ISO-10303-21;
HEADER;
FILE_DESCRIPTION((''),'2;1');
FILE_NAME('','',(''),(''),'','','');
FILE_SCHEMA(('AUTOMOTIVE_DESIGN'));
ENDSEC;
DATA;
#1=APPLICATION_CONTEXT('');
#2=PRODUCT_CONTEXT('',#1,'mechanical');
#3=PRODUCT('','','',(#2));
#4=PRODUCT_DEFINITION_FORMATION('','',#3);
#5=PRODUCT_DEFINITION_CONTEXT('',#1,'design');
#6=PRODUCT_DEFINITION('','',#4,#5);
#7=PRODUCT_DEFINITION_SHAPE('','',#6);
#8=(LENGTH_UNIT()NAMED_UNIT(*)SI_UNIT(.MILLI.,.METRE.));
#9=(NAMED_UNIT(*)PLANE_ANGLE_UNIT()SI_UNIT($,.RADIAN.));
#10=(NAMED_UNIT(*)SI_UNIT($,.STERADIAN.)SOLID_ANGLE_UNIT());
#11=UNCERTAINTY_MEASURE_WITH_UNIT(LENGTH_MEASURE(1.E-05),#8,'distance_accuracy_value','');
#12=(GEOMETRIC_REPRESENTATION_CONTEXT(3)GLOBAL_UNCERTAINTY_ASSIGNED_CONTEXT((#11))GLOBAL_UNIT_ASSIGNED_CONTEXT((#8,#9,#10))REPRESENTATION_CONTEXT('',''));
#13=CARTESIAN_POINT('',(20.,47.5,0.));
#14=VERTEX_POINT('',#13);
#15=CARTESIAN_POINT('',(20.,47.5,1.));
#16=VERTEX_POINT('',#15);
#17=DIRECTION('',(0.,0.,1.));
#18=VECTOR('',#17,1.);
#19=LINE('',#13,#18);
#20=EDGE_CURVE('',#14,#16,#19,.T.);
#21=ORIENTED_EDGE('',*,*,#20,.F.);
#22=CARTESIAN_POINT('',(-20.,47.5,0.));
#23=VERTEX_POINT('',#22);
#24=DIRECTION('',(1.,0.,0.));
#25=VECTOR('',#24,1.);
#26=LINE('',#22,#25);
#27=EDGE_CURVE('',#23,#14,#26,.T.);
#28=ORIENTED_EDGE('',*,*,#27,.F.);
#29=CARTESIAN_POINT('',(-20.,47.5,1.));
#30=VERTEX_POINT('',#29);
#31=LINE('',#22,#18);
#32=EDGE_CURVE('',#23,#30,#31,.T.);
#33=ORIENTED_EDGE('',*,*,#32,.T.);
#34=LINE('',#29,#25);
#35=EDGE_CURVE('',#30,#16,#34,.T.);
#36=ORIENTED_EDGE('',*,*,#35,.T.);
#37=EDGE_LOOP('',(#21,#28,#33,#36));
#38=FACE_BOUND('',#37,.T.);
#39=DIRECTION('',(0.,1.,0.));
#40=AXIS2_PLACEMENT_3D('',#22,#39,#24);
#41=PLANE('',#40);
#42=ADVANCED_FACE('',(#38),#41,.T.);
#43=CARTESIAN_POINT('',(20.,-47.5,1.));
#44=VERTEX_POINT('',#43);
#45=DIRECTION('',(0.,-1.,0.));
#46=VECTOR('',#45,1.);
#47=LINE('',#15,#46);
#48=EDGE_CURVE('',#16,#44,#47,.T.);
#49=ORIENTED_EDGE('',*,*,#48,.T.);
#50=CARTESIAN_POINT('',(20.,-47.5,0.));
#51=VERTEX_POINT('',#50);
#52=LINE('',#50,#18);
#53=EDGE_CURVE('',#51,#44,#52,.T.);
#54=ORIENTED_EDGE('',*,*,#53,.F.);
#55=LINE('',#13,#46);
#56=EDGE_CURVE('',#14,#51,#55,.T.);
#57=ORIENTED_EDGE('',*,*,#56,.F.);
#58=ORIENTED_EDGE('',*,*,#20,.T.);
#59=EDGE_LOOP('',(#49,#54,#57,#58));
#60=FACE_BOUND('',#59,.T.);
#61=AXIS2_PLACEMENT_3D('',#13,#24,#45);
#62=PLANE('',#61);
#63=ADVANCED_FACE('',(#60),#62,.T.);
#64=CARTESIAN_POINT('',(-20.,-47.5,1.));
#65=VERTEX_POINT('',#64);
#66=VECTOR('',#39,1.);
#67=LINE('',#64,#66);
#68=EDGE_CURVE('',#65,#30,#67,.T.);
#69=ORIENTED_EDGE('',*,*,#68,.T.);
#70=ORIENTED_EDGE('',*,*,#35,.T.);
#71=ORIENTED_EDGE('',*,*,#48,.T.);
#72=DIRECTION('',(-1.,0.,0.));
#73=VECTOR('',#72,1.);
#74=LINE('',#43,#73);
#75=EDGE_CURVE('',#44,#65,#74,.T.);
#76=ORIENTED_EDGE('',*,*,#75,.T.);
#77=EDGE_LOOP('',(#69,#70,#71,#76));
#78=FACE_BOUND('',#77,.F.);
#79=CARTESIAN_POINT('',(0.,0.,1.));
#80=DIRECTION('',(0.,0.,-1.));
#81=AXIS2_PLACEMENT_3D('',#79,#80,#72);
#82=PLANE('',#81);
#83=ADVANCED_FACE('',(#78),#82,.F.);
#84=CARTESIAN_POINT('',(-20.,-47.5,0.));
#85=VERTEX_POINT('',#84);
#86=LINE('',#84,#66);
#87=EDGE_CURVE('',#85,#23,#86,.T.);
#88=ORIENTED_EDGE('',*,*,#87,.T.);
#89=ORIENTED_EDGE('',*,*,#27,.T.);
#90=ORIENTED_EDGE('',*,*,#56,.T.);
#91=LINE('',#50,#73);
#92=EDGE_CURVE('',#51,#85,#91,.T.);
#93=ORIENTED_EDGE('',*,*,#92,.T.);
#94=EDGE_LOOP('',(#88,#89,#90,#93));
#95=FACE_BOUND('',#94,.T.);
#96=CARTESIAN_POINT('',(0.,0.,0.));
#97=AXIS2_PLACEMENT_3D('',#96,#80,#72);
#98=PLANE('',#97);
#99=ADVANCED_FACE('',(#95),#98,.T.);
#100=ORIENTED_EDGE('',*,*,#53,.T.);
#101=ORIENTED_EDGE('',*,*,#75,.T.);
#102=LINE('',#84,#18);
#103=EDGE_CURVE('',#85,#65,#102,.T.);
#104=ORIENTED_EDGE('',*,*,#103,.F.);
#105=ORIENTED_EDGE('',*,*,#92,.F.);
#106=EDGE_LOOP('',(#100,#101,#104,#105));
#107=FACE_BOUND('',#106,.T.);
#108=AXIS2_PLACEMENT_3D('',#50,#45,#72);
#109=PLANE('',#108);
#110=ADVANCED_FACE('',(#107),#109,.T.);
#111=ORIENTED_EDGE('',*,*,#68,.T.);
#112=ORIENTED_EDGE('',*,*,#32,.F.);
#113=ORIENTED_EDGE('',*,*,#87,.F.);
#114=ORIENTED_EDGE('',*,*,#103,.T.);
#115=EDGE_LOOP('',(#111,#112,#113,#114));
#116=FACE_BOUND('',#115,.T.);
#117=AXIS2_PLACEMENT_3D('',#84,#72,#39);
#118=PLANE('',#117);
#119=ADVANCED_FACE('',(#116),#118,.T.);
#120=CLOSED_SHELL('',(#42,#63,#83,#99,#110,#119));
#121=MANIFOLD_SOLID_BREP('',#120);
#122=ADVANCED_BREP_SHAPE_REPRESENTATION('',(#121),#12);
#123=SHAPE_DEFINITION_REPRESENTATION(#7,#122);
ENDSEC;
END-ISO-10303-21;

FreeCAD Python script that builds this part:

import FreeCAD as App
import Part
import Sketcher
from FreeCAD import Vector
Q = App.Units.Quantity


def add_polygon(sketch, points):
    """Adds a closed chain of lines whose ends are joined by coincident constraints."""
    first, n = sketch.GeometryCount, len(points)
    for a, b in zip(points, points[1:] + points[:1]):
        sketch.addGeometry(Part.LineSegment(App.Vector(*a, 0), App.Vector(*b, 0)), False)
    for i in range(n):
        sketch.addConstraint(Sketcher.Constraint("Coincident", first + i, 2, first + (i + 1) % n, 1))

doc = App.newDocument("Part")
body = doc.addObject("PartDesign::Body", "Body")

# Sketch on XY plane
sketch1 = body.newObject("Sketcher::SketchObject", "Sketch")
sketch1.AttachmentSupport = (doc.getObject("XY_Plane"), [""])
sketch1.MapMode = "FlatFace"
add_polygon(sketch1, [(20, 48), (-20, 48), (-20, -48), (20, -48)])  # lines 0-3
sketch1.addConstraint([
    Sketcher.Constraint("Horizontal", 0),
    Sketcher.Constraint("Vertical", 1),
    Sketcher.Constraint("Horizontal", 2),
    Sketcher.Constraint("Vertical", 3),
    Sketcher.Constraint("Symmetric", 0, 2, 2, 2, -1, 1),
    Sketcher.Constraint("DistanceX", 0, 2, -1, 1, Q("20 mm")),
    Sketcher.Constraint("DistanceY", 1, 2, 1, 1, Q("95 mm")),
])
pad1 = body.newObject("PartDesign::Pad", "Pad")
pad1.Profile = sketch1
pad1.Length = 1

doc.recompute()
